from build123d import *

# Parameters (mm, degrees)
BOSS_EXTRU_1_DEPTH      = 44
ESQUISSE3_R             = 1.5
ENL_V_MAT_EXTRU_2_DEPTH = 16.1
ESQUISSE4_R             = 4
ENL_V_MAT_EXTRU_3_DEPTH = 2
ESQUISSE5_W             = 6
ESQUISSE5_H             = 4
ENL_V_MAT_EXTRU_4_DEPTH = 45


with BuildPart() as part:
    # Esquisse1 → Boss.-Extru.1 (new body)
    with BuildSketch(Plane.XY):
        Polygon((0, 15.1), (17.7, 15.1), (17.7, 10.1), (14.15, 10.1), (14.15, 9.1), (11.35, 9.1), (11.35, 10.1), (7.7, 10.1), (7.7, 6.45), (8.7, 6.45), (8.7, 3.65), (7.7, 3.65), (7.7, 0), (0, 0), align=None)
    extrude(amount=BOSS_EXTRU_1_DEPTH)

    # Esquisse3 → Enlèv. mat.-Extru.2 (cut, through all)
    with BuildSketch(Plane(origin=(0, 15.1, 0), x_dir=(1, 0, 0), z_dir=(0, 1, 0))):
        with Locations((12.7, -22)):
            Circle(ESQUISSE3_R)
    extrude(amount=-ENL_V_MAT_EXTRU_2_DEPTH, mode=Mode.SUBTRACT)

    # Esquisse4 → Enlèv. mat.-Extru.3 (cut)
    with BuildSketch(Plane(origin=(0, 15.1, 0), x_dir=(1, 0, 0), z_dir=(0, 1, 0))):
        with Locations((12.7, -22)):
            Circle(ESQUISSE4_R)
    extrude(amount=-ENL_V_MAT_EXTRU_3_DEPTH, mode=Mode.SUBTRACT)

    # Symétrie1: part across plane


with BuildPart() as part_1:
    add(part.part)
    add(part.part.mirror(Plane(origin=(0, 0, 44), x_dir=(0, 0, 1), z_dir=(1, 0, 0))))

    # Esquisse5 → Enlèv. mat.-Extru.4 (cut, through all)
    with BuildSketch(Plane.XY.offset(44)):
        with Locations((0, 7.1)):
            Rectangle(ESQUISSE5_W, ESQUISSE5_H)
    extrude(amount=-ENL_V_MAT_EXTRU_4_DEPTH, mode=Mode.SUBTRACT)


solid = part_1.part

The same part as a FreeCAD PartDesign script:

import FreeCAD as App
import Part
import Sketcher

V = App.Vector

doc = App.newDocument("Part")
body = doc.addObject("PartDesign::Body", "Body")

# Sketch on XY plane
sketch1 = doc.addObject("Sketcher::SketchObject", "Sketch")
body.addObject(sketch1)
sketch1.AttachmentSupport = (doc.XY_Plane, [""])
sketch1.MapMode = "FlatFace"
sketch1.addGeometry(Part.LineSegment(V(17.7, 15.1, 0), V(0, 15.1, 0)), False)
sketch1.addGeometry(Part.LineSegment(V(0, 15.1, 0), V(0, 0, 0)), False)
sketch1.addGeometry(Part.LineSegment(V(0, 0, 0), V(7.7, 0, 0)), False)
sketch1.addGeometry(Part.LineSegment(V(7.7, 0, 0), V(7.7, 3.6, 0)), False)
sketch1.addGeometry(Part.LineSegment(V(7.7, 3.6, 0), V(8.7, 3.6, 0)), False)
sketch1.addGeometry(Part.LineSegment(V(8.7, 3.6, 0), V(8.7, 6.5, 0)), False)
sketch1.addGeometry(Part.LineSegment(V(8.7, 6.5, 0), V(7.7, 6.5, 0)), False)
sketch1.addGeometry(Part.LineSegment(V(7.7, 6.5, 0), V(7.7, 10.1, 0)), False)
sketch1.addGeometry(Part.LineSegment(V(7.7, 10.1, 0), V(11.3, 10.1, 0)), False)
sketch1.addGeometry(Part.LineSegment(V(11.3, 10.1, 0), V(11.3, 9.1, 0)), False)
sketch1.addGeometry(Part.LineSegment(V(11.3, 9.1, 0), V(14.2, 9.1, 0)), False)
sketch1.addGeometry(Part.LineSegment(V(14.2, 9.1, 0), V(14.2, 10.1, 0)), False)
sketch1.addGeometry(Part.LineSegment(V(14.2, 10.1, 0), V(17.7, 10.1, 0)), False)
sketch1.addGeometry(Part.LineSegment(V(17.7, 10.1, 0), V(17.7, 15.1, 0)), False)
sketch1.addConstraint(Sketcher.Constraint("Coincident", 0, 2, 1, 1))
sketch1.addConstraint(Sketcher.Constraint("Coincident", 1, 2, 2, 1))
sketch1.addConstraint(Sketcher.Constraint("Coincident", 2, 2, 3, 1))
sketch1.addConstraint(Sketcher.Constraint("Coincident", 3, 2, 4, 1))
sketch1.addConstraint(Sketcher.Constraint("Coincident", 4, 2, 5, 1))
sketch1.addConstraint(Sketcher.Constraint("Coincident", 5, 2, 6, 1))
sketch1.addConstraint(Sketcher.Constraint("Coincident", 6, 2, 7, 1))
sketch1.addConstraint(Sketcher.Constraint("Coincident", 7, 2, 8, 1))
sketch1.addConstraint(Sketcher.Constraint("Coincident", 8, 2, 9, 1))
sketch1.addConstraint(Sketcher.Constraint("Coincident", 9, 2, 10, 1))
sketch1.addConstraint(Sketcher.Constraint("Coincident", 10, 2, 11, 1))
sketch1.addConstraint(Sketcher.Constraint("Coincident", 11, 2, 12, 1))
sketch1.addConstraint(Sketcher.Constraint("Coincident", 12, 2, 13, 1))
sketch1.addConstraint(Sketcher.Constraint("Coincident", 13, 2, 0, 1))
sketch1.addConstraint(Sketcher.Constraint("Horizontal", 0))
sketch1.addConstraint(Sketcher.Constraint("Vertical", 1))
sketch1.addConstraint(Sketcher.Constraint("Horizontal", 2))
sketch1.addConstraint(Sketcher.Constraint("Vertical", 3))
sketch1.addConstraint(Sketcher.Constraint("Horizontal", 4))
sketch1.addConstraint(Sketcher.Constraint("Vertical", 5))
sketch1.addConstraint(Sketcher.Constraint("Horizontal", 6))
sketch1.addConstraint(Sketcher.Constraint("Vertical", 7))
sketch1.addConstraint(Sketcher.Constraint("Horizontal", 8))
sketch1.addConstraint(Sketcher.Constraint("Vertical", 9))
sketch1.addConstraint(Sketcher.Constraint("Horizontal", 10))
sketch1.addConstraint(Sketcher.Constraint("Vertical", 11))
sketch1.addConstraint(Sketcher.Constraint("Horizontal", 12))
sketch1.addConstraint(Sketcher.Constraint("Vertical", 13))
sketch1.addConstraint(Sketcher.Constraint("Coincident", 1, 2, -1, 1))
sketch1.addConstraint(Sketcher.Constraint("Horizontal", 8, 2, 11, 2))
sketch1.addConstraint(Sketcher.Constraint("Vertical", 3, 2, 6, 2))
sketch1.addConstraint(Sketcher.Constraint("Equal", 8, 3))
sketch1.addConstraint(Sketcher.Constraint("Equal", 10, 5))
sketch1.addConstraint(Sketcher.Constraint("Equal", 3, 7))
sketch1.addConstraint(Sketcher.Constraint("Equal", 6, 9))
sketch1.addConstraint(Sketcher.Constraint("DistanceX", 4, 1, 4, 2, 1.0))
sketch1.addConstraint(Sketcher.Constraint("DistanceY", 13, 1, 13, 2, 5.0))
sketch1.addConstraint(Sketcher.Constraint("DistanceX", 0, 2, 0, 1, 17.7))
sketch1.addConstraint(Sketcher.Constraint("DistanceX", 2, 1, 2, 2, 7.7))
sketch1.addConstraint(Sketcher.Constraint("DistanceX", 10, 1, 10, 2, 2.8))
sketch1.addConstraint(Sketcher.Constraint("DistanceY", 1, 2, 1, 1, 15.1))
pad1 = doc.addObject("PartDesign::Pad", "Pad")
body.addObject(pad1)
pad1.Profile = sketch1
pad1.Length = 44

# Sketch on XZ plane
sketch2 = doc.addObject("Sketcher::SketchObject", "Sketch001")
body.addObject(sketch2)
sketch2.AttachmentSupport = (doc.XZ_Plane, [""])
sketch2.MapMode = "FlatFace"
sketch2.AttachmentOffset = App.Placement(V(0, 0, -15.1), App.Rotation())
sketch2.addGeometry(Part.Circle(V(12.7, 22, 0), V(0, 0, 1), 1.5), False)
sketch2.addConstraint(Sketcher.Constraint("Diameter", 0, 3.0))
sketch2.addConstraint(Sketcher.Constraint("DistanceY", -1, 1, 0, 3, 22.0))
sketch2.addConstraint(Sketcher.Constraint("DistanceX", -1, 1, 0, 3, 12.7))
pocket1 = doc.addObject("PartDesign::Pocket", "Pocket")
body.addObject(pocket1)
pocket1.Profile = sketch2
pocket1.Type = "ThroughAll"
pocket1.Reversed = True

# Sketch on XZ plane
sketch3 = doc.addObject("Sketcher::SketchObject", "Sketch002")
body.addObject(sketch3)
sketch3.AttachmentSupport = (doc.XZ_Plane, [""])
sketch3.MapMode = "FlatFace"
sketch3.AttachmentOffset = App.Placement(V(0, 0, -15.1), App.Rotation())
sketch3.addGeometry(Part.Circle(V(12.7, 22, 0), V(0, 0, 1), 4), False)
sketch3.addConstraint(Sketcher.Constraint("Diameter", 0, 8.0))
sketch3.addConstraint(Sketcher.Constraint("DistanceY", -1, 1, 0, 3, 22.0))
sketch3.addConstraint(Sketcher.Constraint("DistanceX", -1, 1, 0, 3, 12.7))
pocket2 = doc.addObject("PartDesign::Pocket", "Pocket001")
body.addObject(pocket2)
pocket2.Profile = sketch3
pocket2.Length = 2
pocket2.Reversed = True
body2 = doc.addObject("PartDesign::Body", "Body001")
doc.recompute()

body2.BaseFeature = body
doc.recompute()

mirroring = doc.addObject("Part::Mirroring", "Mirroring")
mirroring.Source = body
mirroring.Base = V(0, 0, 44)
mirroring.Normal = V(1, 0, 0)
body3 = doc.addObject("PartDesign::Body", "Body002")
body3.BaseFeature = mirroring
boolean = doc.addObject("PartDesign::Boolean", "Boolean")
body2.addObject(boolean)
boolean.Type = "Fuse"
boolean.addObjects([body3])
doc.recompute()

# Sketch on XY plane
sketch4 = doc.addObject("Sketcher::SketchObject", "Sketch003")
body2.addObject(sketch4)
sketch4.AttachmentSupport = (doc.getObject("XY_Plane001"), [""])
sketch4.MapMode = "FlatFace"
sketch4.AttachmentOffset = App.Placement(V(0, 0, 44), App.Rotation())
sketch4.addGeometry(Part.LineSegment(V(-3, 9.1, 0), V(-3, 5.1, 0)), False)
sketch4.addGeometry(Part.LineSegment(V(-3, 5.1, 0), V(3, 5.1, 0)), False)
sketch4.addGeometry(Part.LineSegment(V(3, 5.1, 0), V(3, 9.1, 0)), False)
sketch4.addGeometry(Part.LineSegment(V(3, 9.1, 0), V(-3, 9.1, 0)), False)
sketch4.addConstraint(Sketcher.Constraint("Coincident", 0, 2, 1, 1))
sketch4.addConstraint(Sketcher.Constraint("Coincident", 1, 2, 2, 1))
sketch4.addConstraint(Sketcher.Constraint("Coincident", 2, 2, 3, 1))
sketch4.addConstraint(Sketcher.Constraint("Coincident", 3, 2, 0, 1))
sketch4.addConstraint(Sketcher.Constraint("Vertical", 0))
sketch4.addConstraint(Sketcher.Constraint("Horizontal", 1))
sketch4.addConstraint(Sketcher.Constraint("Vertical", 2))
sketch4.addConstraint(Sketcher.Constraint("Horizontal", 3))
sketch4.addConstraint(Sketcher.Constraint("DistanceX", 1, 1, 1, 2, 6.0))
sketch4.addConstraint(Sketcher.Constraint("DistanceY", 0, 2, 0, 1, 4.0))
sketch4.addConstraint(Sketcher.Constraint("DistanceX", 0, 2, -1, 1, 3.0))
sketch4.addConstraint(Sketcher.Constraint("DistanceY", -1, 1, 0, 2, 5.1))
pocket3 = doc.addObject("PartDesign::Pocket", "Pocket002")
body2.addObject(pocket3)
pocket3.Profile = sketch4
pocket3.Type = "ThroughAll"
mirroring.Visibility = False

doc.recompute()
